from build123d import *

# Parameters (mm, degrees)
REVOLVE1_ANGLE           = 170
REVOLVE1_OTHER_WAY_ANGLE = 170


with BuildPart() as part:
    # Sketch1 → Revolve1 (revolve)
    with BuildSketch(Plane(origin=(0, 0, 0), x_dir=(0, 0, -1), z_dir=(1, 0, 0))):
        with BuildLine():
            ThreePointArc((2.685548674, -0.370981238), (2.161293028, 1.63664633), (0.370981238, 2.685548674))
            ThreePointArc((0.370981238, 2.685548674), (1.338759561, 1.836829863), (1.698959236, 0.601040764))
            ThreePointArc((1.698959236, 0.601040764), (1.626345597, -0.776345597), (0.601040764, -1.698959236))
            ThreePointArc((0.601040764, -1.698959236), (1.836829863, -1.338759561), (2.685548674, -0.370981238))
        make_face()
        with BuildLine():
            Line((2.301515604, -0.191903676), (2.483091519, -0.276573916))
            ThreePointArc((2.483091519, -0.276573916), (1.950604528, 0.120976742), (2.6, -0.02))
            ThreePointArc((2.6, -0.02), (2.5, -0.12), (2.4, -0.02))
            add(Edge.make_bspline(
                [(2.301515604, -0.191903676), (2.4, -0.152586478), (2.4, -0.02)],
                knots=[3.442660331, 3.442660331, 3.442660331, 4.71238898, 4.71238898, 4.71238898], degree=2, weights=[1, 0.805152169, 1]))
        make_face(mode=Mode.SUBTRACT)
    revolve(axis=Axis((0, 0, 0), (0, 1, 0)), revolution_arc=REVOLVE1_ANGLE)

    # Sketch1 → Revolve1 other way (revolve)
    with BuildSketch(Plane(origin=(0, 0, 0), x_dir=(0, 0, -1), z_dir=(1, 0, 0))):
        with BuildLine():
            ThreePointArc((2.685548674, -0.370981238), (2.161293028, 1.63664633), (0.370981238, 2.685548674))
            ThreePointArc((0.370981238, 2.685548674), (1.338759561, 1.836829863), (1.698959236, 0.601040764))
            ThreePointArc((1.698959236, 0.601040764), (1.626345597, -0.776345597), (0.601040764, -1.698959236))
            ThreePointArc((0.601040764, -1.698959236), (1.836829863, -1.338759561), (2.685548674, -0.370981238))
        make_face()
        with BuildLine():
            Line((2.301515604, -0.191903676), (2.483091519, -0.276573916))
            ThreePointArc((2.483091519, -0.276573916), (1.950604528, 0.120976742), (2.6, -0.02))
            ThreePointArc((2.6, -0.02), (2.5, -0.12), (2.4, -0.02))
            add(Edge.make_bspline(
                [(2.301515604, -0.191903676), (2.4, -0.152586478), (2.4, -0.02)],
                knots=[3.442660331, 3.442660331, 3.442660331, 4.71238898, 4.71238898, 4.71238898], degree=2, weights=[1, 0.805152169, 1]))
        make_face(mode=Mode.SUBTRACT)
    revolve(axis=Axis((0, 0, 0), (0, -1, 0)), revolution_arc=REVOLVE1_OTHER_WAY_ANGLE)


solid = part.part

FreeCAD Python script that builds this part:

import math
import FreeCAD as App
import Part
import Sketcher

doc = App.newDocument("Part")
body = doc.addObject("PartDesign::Body", "Body")

# Sketch on YZ plane
sketch1 = body.newObject("Sketcher::SketchObject", "Sketch")
sketch1.AttachmentSupport = (doc.getObject("YZ_Plane"), [""])
sketch1.MapMode = "FlatFace"
sketch1.addGeometry(Part.ArcOfCircle(Part.Circle(App.Vector(0, 0, 0), App.Vector(0, 0, 1), 2.711051), math.radians(-97.865053), math.radians(-7.865053)), False)
sketch1.addGeometry(Part.ArcOfCircle(Part.Circle(App.Vector(0.601041, 0.601041, 0), App.Vector(0, 0, 1), 2.3), math.radians(-90), math.radians(-25)), False)
sketch1.addGeometry(Part.ArcOfCircle(Part.Circle(App.Vector(0, 0, 0), App.Vector(0, 0, 1), 1.802141), math.radians(-160.51775), math.radians(-70.51775)), False)
sketch1.addGeometry(Part.ArcOfCircle(Part.Circle(App.Vector(0.601041, -0.601041, 0), App.Vector(0, 0, 1), 2.3), math.radians(-180), math.radians(-115)), False)
sketch1.addGeometry(Part.BSplineCurve([App.Vector(-0.191904, -2.301516, 0), App.Vector(-0.152586, -2.4, 0), App.Vector(-0.02, -2.4, 0)], [3, 3], [3.442660331, 4.71238898], False, 2, [1, 0.805152169, 1], False), False)
sketch1.addGeometry(Part.LineSegment(App.Vector(-0.191904, -2.301516, 0), App.Vector(-0.276574, -2.483092, 0)), False)
sketch1.addGeometry(Part.ArcOfCircle(Part.Circle(App.Vector(-0.02, -2.26, 0), App.Vector(0, 0, 1), 0.34), math.radians(-90), math.radians(221.007023)), False)
sketch1.addGeometry(Part.ArcOfCircle(Part.Circle(App.Vector(-0.02, -2.5, 0), App.Vector(0, 0, 1), 0.1), math.radians(90), math.radians(270)), False)
sketch1.addConstraint(Sketcher.Constraint("Block", 4))
sketch1.addConstraint(Sketcher.Constraint("Coincident", 0, 2, 1, 2))
sketch1.addConstraint(Sketcher.Constraint("Coincident", 1, 1, 2, 2))
sketch1.addConstraint(Sketcher.Constraint("Coincident", 2, 1, 3, 1))
sketch1.addConstraint(Sketcher.Constraint("Coincident", 3, 2, 0, 1))
sketch1.addConstraint(Sketcher.Constraint("Coincident", 4, 1, 5, 1))
sketch1.addConstraint(Sketcher.Constraint("Coincident", 5, 2, 6, 2))
sketch1.addConstraint(Sketcher.Constraint("Coincident", 6, 1, 7, 2))
sketch1.addConstraint(Sketcher.Constraint("Coincident", 7, 1, 4, 2))
sketch1.addConstraint(Sketcher.Constraint("Coincident", 0, 3, -1, 1))
sketch1.addConstraint(Sketcher.Constraint("Coincident", 2, 3, -1, 1))
sketch1.addConstraint(Sketcher.Constraint("Radius", 1, 2.3))
sketch1.addConstraint(Sketcher.Constraint("Radius", 3, 2.3))
sketch1.addConstraint(Sketcher.Constraint("Radius", 7, 0.1))
sketch1.addConstraint(Sketcher.Constraint("Radius", 6, 0.34))
sketch1.addConstraint(Sketcher.Constraint("DistanceX", 6, 3, -1, 1, 0.02))
sketch1.addConstraint(Sketcher.Constraint("DistanceX", 7, 3, -1, 1, 0.02))
sketch1.addConstraint(Sketcher.Constraint("DistanceX", 6, 1, -1, 1, 0.02))
sketch1.addConstraint(Sketcher.Constraint("Radius", 0, 2.711051))
sketch1.addConstraint(Sketcher.Constraint("Radius", 2, 1.802141))
sketch1.addConstraint(Sketcher.Constraint("DistanceX", -1, 1, 1, 3, 0.601041))
sketch1.addConstraint(Sketcher.Constraint("DistanceY", -1, 1, 1, 3, 0.601041))
sketch1.addConstraint(Sketcher.Constraint("DistanceX", -1, 1, 3, 3, 0.601041))
sketch1.addConstraint(Sketcher.Constraint("DistanceY", 3, 3, -1, 1, 0.601041))
sketch1.addConstraint(Sketcher.Constraint("DistanceY", 5, 2, -1, 1, 2.483092))
revolution = body.newObject("PartDesign::Revolution", "Revolution")
revolution.Profile = sketch1
revolution.ReferenceAxis = (sketch1, ["H_Axis"])
revolution.Angle = 170

# Sketch on YZ plane
sketch2 = body.newObject("Sketcher::SketchObject", "Sketch001")
sketch2.AttachmentSupport = (doc.getObject("YZ_Plane"), [""])
sketch2.MapMode = "FlatFace"
sketch2.addGeometry(Part.ArcOfCircle(Part.Circle(App.Vector(0, 0, 0), App.Vector(0, 0, 1), 2.711051), math.radians(-97.865053), math.radians(-7.865053)), False)
sketch2.addGeometry(Part.ArcOfCircle(Part.Circle(App.Vector(0.601041, 0.601041, 0), App.Vector(0, 0, 1), 2.3), math.radians(-90), math.radians(-25)), False)
sketch2.addGeometry(Part.ArcOfCircle(Part.Circle(App.Vector(0, 0, 0), App.Vector(0, 0, 1), 1.802141), math.radians(-160.51775), math.radians(-70.51775)), False)
sketch2.addGeometry(Part.ArcOfCircle(Part.Circle(App.Vector(0.601041, -0.601041, 0), App.Vector(0, 0, 1), 2.3), math.radians(-180), math.radians(-115)), False)
sketch2.addGeometry(Part.BSplineCurve([App.Vector(-0.191904, -2.301516, 0), App.Vector(-0.152586, -2.4, 0), App.Vector(-0.02, -2.4, 0)], [3, 3], [3.442660331, 4.71238898], False, 2, [1, 0.805152169, 1], False), False)
sketch2.addGeometry(Part.LineSegment(App.Vector(-0.191904, -2.301516, 0), App.Vector(-0.276574, -2.483092, 0)), False)
sketch2.addGeometry(Part.ArcOfCircle(Part.Circle(App.Vector(-0.02, -2.26, 0), App.Vector(0, 0, 1), 0.34), math.radians(-90), math.radians(221.007023)), False)
sketch2.addGeometry(Part.ArcOfCircle(Part.Circle(App.Vector(-0.02, -2.5, 0), App.Vector(0, 0, 1), 0.1), math.radians(90), math.radians(270)), False)
sketch2.addConstraint(Sketcher.Constraint("Block", 4))
sketch2.addConstraint(Sketcher.Constraint("Coincident", 0, 2, 1, 2))
sketch2.addConstraint(Sketcher.Constraint("Coincident", 1, 1, 2, 2))
sketch2.addConstraint(Sketcher.Constraint("Coincident", 2, 1, 3, 1))
sketch2.addConstraint(Sketcher.Constraint("Coincident", 3, 2, 0, 1))
sketch2.addConstraint(Sketcher.Constraint("Coincident", 4, 1, 5, 1))
sketch2.addConstraint(Sketcher.Constraint("Coincident", 5, 2, 6, 2))
sketch2.addConstraint(Sketcher.Constraint("Coincident", 6, 1, 7, 2))
sketch2.addConstraint(Sketcher.Constraint("Coincident", 7, 1, 4, 2))
sketch2.addConstraint(Sketcher.Constraint("Coincident", 0, 3, -1, 1))
sketch2.addConstraint(Sketcher.Constraint("Coincident", 2, 3, -1, 1))
sketch2.addConstraint(Sketcher.Constraint("Radius", 1, 2.3))
sketch2.addConstraint(Sketcher.Constraint("Radius", 3, 2.3))
sketch2.addConstraint(Sketcher.Constraint("Radius", 7, 0.1))
sketch2.addConstraint(Sketcher.Constraint("Radius", 6, 0.34))
sketch2.addConstraint(Sketcher.Constraint("DistanceX", 6, 3, -1, 1, 0.02))
sketch2.addConstraint(Sketcher.Constraint("DistanceX", 7, 3, -1, 1, 0.02))
sketch2.addConstraint(Sketcher.Constraint("DistanceX", 6, 1, -1, 1, 0.02))
sketch2.addConstraint(Sketcher.Constraint("Radius", 0, 2.711051))
sketch2.addConstraint(Sketcher.Constraint("Radius", 2, 1.802141))
sketch2.addConstraint(Sketcher.Constraint("DistanceX", -1, 1, 1, 3, 0.601041))
sketch2.addConstraint(Sketcher.Constraint("DistanceY", -1, 1, 1, 3, 0.601041))
sketch2.addConstraint(Sketcher.Constraint("DistanceX", -1, 1, 3, 3, 0.601041))
sketch2.addConstraint(Sketcher.Constraint("DistanceY", 3, 3, -1, 1, 0.601041))
sketch2.addConstraint(Sketcher.Constraint("DistanceY", 5, 2, -1, 1, 2.483092))
revolution2 = body.newObject("PartDesign::Revolution", "Revolution001")
revolution2.Profile = sketch2
revolution2.ReferenceAxis = (sketch2, ["H_Axis"])
revolution2.Angle = 170
revolution2.Reversed = True

doc.recompute()
